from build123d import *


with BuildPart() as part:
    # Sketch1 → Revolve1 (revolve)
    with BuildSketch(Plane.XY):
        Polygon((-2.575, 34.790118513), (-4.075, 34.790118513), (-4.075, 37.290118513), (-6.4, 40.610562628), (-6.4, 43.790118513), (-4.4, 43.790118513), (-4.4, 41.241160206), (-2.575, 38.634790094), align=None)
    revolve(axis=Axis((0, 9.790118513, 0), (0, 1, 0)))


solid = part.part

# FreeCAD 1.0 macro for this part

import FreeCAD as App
import Part
import Sketcher
Q = App.Units.Quantity


def add_polygon(sketch, points):
    """Adds a closed chain of lines whose ends are joined by coincident constraints."""
    first, n = sketch.GeometryCount, len(points)
    for a, b in zip(points, points[1:] + points[:1]):
        sketch.addGeometry(Part.LineSegment(App.Vector(*a, 0), App.Vector(*b, 0)), False)
    for i in range(n):
        sketch.addConstraint(Sketcher.Constraint("Coincident", first + i, 2, first + (i + 1) % n, 1))

doc = App.newDocument("Part")
params = doc.addObject("Spreadsheet::Sheet", "Params")
for row, (alias, value) in enumerate([
    ("sketch1_width", "2 mm"),
    ("sketch1_width2", "1.5 mm"),
    ("sketch1_height", "2.5 mm"),
    ("revolution_angle", "360 deg"),
], start=1):
    params.set(f"A{row}", alias)
    params.set(f"B{row}", "=" + value)
    params.setAlias(f"B{row}", alias)

body = doc.addObject("PartDesign::Body", "Body")

sketch1 = doc.addObject("Sketcher::SketchObject", "Sketch")
body.addObject(sketch1)
sketch1.AttachmentSupport = (doc.XY_Plane, [""])
sketch1.MapMode = "FlatFace"
add_polygon(sketch1, [(-4.075, 34.790119), (-2.575, 34.790119), (-2.575, 38.63479), (-4.4, 41.24116), (-4.4, 43.790119), (-6.4, 43.790119), (-6.4, 40.610563), (-4.075, 37.290119)])
sketch1.addConstraint([
    Sketcher.Constraint("Horizontal", 0),
    Sketcher.Constraint("Vertical", 1),
    Sketcher.Constraint("Vertical", 3),
    Sketcher.Constraint("Horizontal", 4),
    Sketcher.Constraint("Vertical", 5),
    Sketcher.Constraint("Vertical", 7),
    Sketcher.Constraint("Parallel", 2, 6),
    Sketcher.Constraint("DistanceX", 4, 2, 4, 1, 2.0),
    Sketcher.Constraint("Angle", 2, Q("125 deg")),
    Sketcher.Constraint("DistanceX", 0, 1, 0, 2, 1.5),
    Sketcher.Constraint("DistanceY", 7, 2, 7, 1, 2.5),
    Sketcher.Constraint("DistanceY", 0, 2, 3, 2, 9.0),
    Sketcher.Constraint("DistanceX", 2, 2, -1, 1, 4.4),
    Sketcher.Constraint("DistanceX", 0, 2, -1, 1, 2.575),
    Sketcher.Constraint("DistanceY", 1, 1, 1, 2, 3.844672),
    Sketcher.Constraint("DistanceY", -1, 1, 0, 2, 34.790119),
])
sketch1.setExpression("Constraints[15]", "Params.sketch1_width")
sketch1.setExpression("Constraints[17]", "Params.sketch1_width2")
sketch1.setExpression("Constraints[18]", "Params.sketch1_height")
revolution = doc.addObject("PartDesign::Revolution", "Revolution")
body.addObject(revolution)
revolution.Profile = sketch1
revolution.ReferenceAxis = (sketch1, ["V_Axis"])
revolution.setExpression("Angle", "Params.revolution_angle")

doc.recompute()
